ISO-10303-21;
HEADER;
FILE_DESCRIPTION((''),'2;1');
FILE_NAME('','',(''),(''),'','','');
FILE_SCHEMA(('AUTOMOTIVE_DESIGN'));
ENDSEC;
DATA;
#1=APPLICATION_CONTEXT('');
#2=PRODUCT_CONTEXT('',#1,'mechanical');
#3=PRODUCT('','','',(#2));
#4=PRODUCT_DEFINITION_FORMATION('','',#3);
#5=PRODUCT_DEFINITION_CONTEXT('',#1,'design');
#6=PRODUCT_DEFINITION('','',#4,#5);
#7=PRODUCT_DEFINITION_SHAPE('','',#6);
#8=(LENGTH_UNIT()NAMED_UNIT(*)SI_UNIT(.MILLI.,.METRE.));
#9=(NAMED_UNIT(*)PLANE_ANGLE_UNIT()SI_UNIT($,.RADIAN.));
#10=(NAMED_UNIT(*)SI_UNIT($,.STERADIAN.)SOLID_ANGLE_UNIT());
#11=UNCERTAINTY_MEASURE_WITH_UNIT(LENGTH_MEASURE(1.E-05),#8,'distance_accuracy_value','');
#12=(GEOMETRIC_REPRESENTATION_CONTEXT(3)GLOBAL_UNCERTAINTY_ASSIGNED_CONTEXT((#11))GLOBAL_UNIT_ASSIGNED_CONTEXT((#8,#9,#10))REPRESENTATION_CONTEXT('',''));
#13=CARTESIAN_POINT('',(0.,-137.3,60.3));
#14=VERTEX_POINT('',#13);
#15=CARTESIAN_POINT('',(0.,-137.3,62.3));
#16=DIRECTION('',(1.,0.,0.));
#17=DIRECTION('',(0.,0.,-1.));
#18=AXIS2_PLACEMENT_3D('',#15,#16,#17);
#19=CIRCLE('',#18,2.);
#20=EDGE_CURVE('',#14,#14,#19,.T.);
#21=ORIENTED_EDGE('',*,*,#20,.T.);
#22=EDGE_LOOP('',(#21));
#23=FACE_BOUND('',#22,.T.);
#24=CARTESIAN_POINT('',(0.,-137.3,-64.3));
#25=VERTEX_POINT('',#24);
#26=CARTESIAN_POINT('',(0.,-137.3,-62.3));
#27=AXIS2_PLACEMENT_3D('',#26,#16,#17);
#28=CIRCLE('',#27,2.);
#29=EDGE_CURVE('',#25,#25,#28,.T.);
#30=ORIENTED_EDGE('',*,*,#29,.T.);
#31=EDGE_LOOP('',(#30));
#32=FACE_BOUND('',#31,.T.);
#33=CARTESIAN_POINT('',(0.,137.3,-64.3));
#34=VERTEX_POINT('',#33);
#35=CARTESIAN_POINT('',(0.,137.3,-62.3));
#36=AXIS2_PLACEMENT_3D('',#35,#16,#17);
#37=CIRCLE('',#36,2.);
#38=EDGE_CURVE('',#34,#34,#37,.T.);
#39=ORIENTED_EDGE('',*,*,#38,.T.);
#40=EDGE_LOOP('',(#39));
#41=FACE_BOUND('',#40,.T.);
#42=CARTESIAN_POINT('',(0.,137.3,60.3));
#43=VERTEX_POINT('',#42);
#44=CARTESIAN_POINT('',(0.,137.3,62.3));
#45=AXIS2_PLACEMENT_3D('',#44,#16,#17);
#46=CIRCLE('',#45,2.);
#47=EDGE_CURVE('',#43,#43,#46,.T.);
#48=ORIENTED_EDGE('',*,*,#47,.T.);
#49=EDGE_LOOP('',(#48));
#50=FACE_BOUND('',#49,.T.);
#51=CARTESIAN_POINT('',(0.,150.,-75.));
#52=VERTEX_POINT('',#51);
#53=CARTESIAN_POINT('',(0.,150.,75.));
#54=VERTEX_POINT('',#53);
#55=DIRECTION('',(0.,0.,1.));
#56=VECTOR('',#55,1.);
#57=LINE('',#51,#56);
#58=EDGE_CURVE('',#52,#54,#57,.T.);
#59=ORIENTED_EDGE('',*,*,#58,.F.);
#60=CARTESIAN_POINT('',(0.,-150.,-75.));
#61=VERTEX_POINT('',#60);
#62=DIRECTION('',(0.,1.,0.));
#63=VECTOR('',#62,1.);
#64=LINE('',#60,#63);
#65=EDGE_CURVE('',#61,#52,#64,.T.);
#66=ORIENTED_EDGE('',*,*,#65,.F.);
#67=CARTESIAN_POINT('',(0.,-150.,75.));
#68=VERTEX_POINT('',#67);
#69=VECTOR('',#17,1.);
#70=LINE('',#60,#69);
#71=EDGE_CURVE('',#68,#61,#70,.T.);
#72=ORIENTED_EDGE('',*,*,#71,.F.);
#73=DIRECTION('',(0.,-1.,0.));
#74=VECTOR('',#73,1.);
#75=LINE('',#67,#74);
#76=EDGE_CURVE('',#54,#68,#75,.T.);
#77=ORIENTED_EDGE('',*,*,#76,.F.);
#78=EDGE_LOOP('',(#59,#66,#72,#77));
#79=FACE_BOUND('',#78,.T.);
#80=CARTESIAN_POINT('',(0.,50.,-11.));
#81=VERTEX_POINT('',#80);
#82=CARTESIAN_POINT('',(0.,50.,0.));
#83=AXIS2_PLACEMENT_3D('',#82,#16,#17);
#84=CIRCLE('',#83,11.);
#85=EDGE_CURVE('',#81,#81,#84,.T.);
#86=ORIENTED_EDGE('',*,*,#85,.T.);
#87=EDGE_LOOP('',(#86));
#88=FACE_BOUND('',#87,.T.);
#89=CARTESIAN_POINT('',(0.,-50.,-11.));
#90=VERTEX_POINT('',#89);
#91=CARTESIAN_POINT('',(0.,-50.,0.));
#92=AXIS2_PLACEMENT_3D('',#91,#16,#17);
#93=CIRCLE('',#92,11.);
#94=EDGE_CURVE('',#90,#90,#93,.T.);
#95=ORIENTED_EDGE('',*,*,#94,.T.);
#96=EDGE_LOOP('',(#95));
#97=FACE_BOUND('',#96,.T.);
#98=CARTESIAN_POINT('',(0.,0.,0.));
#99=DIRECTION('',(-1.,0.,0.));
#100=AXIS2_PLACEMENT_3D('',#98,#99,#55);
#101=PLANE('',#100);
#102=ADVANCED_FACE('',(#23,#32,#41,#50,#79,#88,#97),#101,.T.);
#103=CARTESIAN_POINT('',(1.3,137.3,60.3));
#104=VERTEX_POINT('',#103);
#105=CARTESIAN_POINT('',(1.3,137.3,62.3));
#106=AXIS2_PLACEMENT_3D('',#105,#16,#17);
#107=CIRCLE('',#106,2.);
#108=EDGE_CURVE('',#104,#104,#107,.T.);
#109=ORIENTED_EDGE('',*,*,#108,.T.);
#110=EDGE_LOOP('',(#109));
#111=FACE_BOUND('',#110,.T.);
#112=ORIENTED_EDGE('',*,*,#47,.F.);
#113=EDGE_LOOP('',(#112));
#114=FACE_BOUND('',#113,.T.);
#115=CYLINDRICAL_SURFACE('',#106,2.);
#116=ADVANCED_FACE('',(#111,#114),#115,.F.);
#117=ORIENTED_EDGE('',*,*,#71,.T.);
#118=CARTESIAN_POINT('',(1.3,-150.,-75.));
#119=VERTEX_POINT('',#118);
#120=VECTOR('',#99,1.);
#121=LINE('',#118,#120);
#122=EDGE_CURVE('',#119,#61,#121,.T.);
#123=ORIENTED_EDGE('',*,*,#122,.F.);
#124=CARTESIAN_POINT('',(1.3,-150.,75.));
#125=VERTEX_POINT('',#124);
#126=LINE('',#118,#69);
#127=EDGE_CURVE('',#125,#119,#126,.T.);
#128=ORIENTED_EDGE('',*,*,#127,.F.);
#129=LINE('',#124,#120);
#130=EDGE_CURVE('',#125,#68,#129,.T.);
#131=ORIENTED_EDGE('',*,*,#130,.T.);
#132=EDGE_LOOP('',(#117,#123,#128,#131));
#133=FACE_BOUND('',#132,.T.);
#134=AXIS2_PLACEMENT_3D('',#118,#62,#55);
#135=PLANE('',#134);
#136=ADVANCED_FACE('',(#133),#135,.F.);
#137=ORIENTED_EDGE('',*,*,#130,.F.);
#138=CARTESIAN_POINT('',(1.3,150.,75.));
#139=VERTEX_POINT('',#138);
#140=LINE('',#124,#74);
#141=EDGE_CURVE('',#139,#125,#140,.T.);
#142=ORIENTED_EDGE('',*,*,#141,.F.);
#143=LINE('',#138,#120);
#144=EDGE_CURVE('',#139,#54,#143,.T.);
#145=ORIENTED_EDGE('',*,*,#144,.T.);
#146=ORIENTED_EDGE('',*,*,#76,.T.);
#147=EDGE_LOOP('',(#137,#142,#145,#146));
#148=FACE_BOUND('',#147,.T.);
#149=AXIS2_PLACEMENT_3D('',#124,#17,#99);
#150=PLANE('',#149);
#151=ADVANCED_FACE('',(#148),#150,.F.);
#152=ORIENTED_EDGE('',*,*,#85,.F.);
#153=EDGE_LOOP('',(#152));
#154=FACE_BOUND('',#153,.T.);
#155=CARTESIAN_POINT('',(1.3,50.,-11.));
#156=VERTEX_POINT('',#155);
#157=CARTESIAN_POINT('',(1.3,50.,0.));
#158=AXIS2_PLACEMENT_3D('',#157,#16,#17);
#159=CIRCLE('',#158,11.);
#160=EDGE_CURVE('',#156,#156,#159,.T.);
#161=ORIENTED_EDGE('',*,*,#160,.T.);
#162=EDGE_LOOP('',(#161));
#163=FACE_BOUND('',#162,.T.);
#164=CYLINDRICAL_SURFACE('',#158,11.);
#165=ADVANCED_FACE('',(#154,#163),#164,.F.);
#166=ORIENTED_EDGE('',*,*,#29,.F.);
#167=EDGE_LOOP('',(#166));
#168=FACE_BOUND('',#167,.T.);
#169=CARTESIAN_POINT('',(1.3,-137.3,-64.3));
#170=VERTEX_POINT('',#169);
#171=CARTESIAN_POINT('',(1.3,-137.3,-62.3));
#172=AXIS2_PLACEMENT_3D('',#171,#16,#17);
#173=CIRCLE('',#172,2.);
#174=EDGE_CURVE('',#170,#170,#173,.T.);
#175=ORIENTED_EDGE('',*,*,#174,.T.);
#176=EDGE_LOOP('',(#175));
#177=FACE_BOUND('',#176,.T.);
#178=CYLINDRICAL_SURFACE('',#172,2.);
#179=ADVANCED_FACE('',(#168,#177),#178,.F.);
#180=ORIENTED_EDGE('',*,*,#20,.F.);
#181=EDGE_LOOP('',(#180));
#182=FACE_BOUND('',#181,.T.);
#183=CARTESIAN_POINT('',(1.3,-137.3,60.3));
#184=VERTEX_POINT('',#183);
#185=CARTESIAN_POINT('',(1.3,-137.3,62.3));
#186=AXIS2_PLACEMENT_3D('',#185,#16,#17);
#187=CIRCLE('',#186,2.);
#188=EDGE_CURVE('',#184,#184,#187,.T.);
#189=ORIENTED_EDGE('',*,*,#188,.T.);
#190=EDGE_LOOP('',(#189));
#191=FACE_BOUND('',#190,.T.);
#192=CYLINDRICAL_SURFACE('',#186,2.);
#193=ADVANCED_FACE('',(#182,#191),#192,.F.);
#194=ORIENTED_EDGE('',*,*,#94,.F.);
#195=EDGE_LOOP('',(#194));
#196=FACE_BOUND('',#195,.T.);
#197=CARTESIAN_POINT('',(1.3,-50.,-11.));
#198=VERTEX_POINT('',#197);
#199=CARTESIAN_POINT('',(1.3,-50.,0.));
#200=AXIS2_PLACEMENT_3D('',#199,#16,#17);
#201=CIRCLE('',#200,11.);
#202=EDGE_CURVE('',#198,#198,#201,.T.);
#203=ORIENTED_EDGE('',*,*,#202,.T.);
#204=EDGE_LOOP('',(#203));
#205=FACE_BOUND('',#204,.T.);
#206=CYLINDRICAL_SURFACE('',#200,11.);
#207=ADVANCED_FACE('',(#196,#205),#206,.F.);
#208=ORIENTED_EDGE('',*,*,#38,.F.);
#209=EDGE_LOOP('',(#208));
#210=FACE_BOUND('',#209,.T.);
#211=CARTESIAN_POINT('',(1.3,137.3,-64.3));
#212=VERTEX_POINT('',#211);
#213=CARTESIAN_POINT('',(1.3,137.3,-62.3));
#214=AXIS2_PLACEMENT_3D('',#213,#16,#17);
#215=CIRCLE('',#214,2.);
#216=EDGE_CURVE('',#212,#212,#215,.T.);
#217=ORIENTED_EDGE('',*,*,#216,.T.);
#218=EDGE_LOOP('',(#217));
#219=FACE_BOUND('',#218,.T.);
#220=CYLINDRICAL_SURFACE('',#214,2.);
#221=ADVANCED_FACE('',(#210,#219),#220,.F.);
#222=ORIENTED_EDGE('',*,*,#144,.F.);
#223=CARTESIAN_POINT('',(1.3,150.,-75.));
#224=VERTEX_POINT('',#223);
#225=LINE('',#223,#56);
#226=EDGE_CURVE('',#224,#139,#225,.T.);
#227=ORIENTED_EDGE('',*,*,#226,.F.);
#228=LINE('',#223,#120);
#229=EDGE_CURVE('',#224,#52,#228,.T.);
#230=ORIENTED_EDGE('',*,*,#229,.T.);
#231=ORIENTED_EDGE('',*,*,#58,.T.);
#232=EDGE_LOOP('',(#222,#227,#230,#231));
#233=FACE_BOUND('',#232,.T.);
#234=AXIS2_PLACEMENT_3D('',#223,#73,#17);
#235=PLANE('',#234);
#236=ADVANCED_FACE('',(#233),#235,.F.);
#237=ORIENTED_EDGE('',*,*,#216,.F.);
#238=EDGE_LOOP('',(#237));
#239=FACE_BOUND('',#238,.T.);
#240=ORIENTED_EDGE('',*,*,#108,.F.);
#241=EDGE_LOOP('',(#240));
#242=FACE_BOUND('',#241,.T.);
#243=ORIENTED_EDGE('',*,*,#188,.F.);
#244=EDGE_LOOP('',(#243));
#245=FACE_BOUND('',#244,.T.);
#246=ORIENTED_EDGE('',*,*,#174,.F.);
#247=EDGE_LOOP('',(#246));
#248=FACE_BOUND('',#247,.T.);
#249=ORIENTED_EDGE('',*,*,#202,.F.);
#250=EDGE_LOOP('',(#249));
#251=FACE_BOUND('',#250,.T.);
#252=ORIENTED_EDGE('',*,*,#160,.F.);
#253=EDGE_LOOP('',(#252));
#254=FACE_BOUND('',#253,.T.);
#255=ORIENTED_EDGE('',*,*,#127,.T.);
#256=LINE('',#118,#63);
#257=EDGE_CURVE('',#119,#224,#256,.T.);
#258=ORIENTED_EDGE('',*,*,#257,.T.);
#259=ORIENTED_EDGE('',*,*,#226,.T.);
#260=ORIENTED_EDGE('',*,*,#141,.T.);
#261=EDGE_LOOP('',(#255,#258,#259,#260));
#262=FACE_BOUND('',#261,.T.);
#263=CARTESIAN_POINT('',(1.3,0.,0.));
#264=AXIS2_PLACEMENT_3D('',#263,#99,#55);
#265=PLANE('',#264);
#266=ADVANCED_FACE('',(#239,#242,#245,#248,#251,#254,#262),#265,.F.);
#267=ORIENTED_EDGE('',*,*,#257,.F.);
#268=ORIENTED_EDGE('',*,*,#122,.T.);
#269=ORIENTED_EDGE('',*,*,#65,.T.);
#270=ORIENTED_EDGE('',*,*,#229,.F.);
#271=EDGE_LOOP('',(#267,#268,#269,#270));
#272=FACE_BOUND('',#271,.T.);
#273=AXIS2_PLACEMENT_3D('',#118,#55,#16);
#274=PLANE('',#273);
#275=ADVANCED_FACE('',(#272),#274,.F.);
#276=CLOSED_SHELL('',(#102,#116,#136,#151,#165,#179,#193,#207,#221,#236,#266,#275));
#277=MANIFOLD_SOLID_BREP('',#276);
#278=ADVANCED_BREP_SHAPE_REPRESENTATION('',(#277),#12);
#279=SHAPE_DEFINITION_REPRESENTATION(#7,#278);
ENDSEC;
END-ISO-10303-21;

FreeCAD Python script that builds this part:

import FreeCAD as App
import Part
import Sketcher

V = App.Vector

doc = App.newDocument("Part")
body = doc.addObject("PartDesign::Body", "Body")

# Sketch on YZ plane
sketch1 = doc.addObject("Sketcher::SketchObject", "Sketch")
body.addObject(sketch1)
sketch1.AttachmentSupport = (doc.YZ_Plane, [""])
sketch1.MapMode = "FlatFace"
sketch1.addGeometry(Part.LineSegment(V(-150, 75, 0), V(-150, -75, 0)), False)
sketch1.addGeometry(Part.LineSegment(V(-150, -75, 0), V(150, -75, 0)), False)
sketch1.addGeometry(Part.LineSegment(V(150, -75, 0), V(150, 75, 0)), False)
sketch1.addGeometry(Part.LineSegment(V(150, 75, 0), V(-150, 75, 0)), False)
sketch1.addConstraint(Sketcher.Constraint("Coincident", 0, 2, 1, 1))
sketch1.addConstraint(Sketcher.Constraint("Coincident", 1, 2, 2, 1))
sketch1.addConstraint(Sketcher.Constraint("Coincident", 2, 2, 3, 1))
sketch1.addConstraint(Sketcher.Constraint("Coincident", 3, 2, 0, 1))
sketch1.addConstraint(Sketcher.Constraint("Vertical", 0))
sketch1.addConstraint(Sketcher.Constraint("Horizontal", 1))
sketch1.addConstraint(Sketcher.Constraint("Vertical", 2))
sketch1.addConstraint(Sketcher.Constraint("Horizontal", 3))
sketch1.addConstraint(Sketcher.Constraint("Symmetric", 0, 2, 2, 2, -1, 1))
sketch1.addConstraint(Sketcher.Constraint("DistanceX", 1, 1, 1, 2, 300.0))
sketch1.addConstraint(Sketcher.Constraint("DistanceY", 0, 2, 0, 1, 150.0))
pad1 = doc.addObject("PartDesign::Pad", "Pad")
body.addObject(pad1)
pad1.Profile = sketch1
pad1.Length = 1.3

# Sketch on YZ plane
sketch2 = doc.addObject("Sketcher::SketchObject", "Sketch001")
body.addObject(sketch2)
sketch2.AttachmentSupport = (doc.YZ_Plane, [""])
sketch2.MapMode = "FlatFace"
sketch2.AttachmentOffset = App.Placement(V(0, 0, 1.3), App.Rotation())
sketch2.addGeometry(Part.Circle(V(-137.3, 62.3, 0), V(0, 0, 1), 2), False)
sketch2.addConstraint(Sketcher.Constraint("Diameter", 0, 4.0))
sketch2.addConstraint(Sketcher.Constraint("DistanceX", 0, 3, -1, 1, 137.3))
sketch2.addConstraint(Sketcher.Constraint("DistanceY", -1, 1, 0, 3, 62.3))
doc.recompute()
hole = doc.addObject("PartDesign::Hole", "Hole")
body.addObject(hole)
hole.Profile = sketch2
hole.ThreadType = "None"
hole.Diameter = 4
hole.DepthType = "ThroughAll"
doc.recompute()

mirrored = doc.addObject("PartDesign::Mirrored", "Mirrored")
body.addObject(mirrored)
mirrored.Originals = [hole]
mirrored.MirrorPlane = (doc.XZ_Plane, [""])
body.Tip = mirrored
doc.recompute()

mirrored2 = doc.addObject("PartDesign::Mirrored", "Mirrored001")
body.addObject(mirrored2)
mirrored2.Originals = [hole]
mirrored2.MirrorPlane = (doc.XY_Plane, [""])
body.Tip = mirrored2

# Sketch on YZ plane
sketch3 = doc.addObject("Sketcher::SketchObject", "Sketch002")
body.addObject(sketch3)
sketch3.AttachmentSupport = (doc.YZ_Plane, [""])
sketch3.MapMode = "FlatFace"
sketch3.AttachmentOffset = App.Placement(V(0, 0, 1.3), App.Rotation())
sketch3.addGeometry(Part.Circle(V(137.3, -62.3, 0), V(0, 0, 1), 2), False)
sketch3.addConstraint(Sketcher.Constraint("Diameter", 0, 4.0))
sketch3.addConstraint(Sketcher.Constraint("DistanceX", -1, 1, 0, 3, 137.3))
sketch3.addConstraint(Sketcher.Constraint("DistanceY", 0, 3, -1, 1, 62.3))
doc.recompute()
hole2 = doc.addObject("PartDesign::Hole", "Hole001")
body.addObject(hole2)
hole2.Profile = sketch3
hole2.ThreadType = "None"
hole2.Diameter = 4
hole2.DepthType = "ThroughAll"

# Sketch on YZ plane
sketch4 = doc.addObject("Sketcher::SketchObject", "Sketch003")
body.addObject(sketch4)
sketch4.AttachmentSupport = (doc.YZ_Plane, [""])
sketch4.MapMode = "FlatFace"
sketch4.AttachmentOffset = App.Placement(V(0, 0, 1.3), App.Rotation())
sketch4.addGeometry(Part.Circle(V(-50, 0, 0), V(0, 0, 1), 11), False)
sketch4.addConstraint(Sketcher.Constraint("PointOnObject", 0, 3, -1))
sketch4.addConstraint(Sketcher.Constraint("Diameter", 0, 22.0))
sketch4.addConstraint(Sketcher.Constraint("DistanceX", 0, 3, -1, 1, 50.0))
doc.recompute()
hole3 = doc.addObject("PartDesign::Hole", "Hole002")
body.addObject(hole3)
hole3.Profile = sketch4
hole3.ThreadType = "None"
hole3.Diameter = 22
hole3.DepthType = "ThroughAll"
doc.recompute()

mirrored3 = doc.addObject("PartDesign::Mirrored", "Mirrored002")
body.addObject(mirrored3)
mirrored3.Originals = [hole3]
mirrored3.MirrorPlane = (doc.XZ_Plane, [""])
body.Tip = mirrored3

doc.recompute()
